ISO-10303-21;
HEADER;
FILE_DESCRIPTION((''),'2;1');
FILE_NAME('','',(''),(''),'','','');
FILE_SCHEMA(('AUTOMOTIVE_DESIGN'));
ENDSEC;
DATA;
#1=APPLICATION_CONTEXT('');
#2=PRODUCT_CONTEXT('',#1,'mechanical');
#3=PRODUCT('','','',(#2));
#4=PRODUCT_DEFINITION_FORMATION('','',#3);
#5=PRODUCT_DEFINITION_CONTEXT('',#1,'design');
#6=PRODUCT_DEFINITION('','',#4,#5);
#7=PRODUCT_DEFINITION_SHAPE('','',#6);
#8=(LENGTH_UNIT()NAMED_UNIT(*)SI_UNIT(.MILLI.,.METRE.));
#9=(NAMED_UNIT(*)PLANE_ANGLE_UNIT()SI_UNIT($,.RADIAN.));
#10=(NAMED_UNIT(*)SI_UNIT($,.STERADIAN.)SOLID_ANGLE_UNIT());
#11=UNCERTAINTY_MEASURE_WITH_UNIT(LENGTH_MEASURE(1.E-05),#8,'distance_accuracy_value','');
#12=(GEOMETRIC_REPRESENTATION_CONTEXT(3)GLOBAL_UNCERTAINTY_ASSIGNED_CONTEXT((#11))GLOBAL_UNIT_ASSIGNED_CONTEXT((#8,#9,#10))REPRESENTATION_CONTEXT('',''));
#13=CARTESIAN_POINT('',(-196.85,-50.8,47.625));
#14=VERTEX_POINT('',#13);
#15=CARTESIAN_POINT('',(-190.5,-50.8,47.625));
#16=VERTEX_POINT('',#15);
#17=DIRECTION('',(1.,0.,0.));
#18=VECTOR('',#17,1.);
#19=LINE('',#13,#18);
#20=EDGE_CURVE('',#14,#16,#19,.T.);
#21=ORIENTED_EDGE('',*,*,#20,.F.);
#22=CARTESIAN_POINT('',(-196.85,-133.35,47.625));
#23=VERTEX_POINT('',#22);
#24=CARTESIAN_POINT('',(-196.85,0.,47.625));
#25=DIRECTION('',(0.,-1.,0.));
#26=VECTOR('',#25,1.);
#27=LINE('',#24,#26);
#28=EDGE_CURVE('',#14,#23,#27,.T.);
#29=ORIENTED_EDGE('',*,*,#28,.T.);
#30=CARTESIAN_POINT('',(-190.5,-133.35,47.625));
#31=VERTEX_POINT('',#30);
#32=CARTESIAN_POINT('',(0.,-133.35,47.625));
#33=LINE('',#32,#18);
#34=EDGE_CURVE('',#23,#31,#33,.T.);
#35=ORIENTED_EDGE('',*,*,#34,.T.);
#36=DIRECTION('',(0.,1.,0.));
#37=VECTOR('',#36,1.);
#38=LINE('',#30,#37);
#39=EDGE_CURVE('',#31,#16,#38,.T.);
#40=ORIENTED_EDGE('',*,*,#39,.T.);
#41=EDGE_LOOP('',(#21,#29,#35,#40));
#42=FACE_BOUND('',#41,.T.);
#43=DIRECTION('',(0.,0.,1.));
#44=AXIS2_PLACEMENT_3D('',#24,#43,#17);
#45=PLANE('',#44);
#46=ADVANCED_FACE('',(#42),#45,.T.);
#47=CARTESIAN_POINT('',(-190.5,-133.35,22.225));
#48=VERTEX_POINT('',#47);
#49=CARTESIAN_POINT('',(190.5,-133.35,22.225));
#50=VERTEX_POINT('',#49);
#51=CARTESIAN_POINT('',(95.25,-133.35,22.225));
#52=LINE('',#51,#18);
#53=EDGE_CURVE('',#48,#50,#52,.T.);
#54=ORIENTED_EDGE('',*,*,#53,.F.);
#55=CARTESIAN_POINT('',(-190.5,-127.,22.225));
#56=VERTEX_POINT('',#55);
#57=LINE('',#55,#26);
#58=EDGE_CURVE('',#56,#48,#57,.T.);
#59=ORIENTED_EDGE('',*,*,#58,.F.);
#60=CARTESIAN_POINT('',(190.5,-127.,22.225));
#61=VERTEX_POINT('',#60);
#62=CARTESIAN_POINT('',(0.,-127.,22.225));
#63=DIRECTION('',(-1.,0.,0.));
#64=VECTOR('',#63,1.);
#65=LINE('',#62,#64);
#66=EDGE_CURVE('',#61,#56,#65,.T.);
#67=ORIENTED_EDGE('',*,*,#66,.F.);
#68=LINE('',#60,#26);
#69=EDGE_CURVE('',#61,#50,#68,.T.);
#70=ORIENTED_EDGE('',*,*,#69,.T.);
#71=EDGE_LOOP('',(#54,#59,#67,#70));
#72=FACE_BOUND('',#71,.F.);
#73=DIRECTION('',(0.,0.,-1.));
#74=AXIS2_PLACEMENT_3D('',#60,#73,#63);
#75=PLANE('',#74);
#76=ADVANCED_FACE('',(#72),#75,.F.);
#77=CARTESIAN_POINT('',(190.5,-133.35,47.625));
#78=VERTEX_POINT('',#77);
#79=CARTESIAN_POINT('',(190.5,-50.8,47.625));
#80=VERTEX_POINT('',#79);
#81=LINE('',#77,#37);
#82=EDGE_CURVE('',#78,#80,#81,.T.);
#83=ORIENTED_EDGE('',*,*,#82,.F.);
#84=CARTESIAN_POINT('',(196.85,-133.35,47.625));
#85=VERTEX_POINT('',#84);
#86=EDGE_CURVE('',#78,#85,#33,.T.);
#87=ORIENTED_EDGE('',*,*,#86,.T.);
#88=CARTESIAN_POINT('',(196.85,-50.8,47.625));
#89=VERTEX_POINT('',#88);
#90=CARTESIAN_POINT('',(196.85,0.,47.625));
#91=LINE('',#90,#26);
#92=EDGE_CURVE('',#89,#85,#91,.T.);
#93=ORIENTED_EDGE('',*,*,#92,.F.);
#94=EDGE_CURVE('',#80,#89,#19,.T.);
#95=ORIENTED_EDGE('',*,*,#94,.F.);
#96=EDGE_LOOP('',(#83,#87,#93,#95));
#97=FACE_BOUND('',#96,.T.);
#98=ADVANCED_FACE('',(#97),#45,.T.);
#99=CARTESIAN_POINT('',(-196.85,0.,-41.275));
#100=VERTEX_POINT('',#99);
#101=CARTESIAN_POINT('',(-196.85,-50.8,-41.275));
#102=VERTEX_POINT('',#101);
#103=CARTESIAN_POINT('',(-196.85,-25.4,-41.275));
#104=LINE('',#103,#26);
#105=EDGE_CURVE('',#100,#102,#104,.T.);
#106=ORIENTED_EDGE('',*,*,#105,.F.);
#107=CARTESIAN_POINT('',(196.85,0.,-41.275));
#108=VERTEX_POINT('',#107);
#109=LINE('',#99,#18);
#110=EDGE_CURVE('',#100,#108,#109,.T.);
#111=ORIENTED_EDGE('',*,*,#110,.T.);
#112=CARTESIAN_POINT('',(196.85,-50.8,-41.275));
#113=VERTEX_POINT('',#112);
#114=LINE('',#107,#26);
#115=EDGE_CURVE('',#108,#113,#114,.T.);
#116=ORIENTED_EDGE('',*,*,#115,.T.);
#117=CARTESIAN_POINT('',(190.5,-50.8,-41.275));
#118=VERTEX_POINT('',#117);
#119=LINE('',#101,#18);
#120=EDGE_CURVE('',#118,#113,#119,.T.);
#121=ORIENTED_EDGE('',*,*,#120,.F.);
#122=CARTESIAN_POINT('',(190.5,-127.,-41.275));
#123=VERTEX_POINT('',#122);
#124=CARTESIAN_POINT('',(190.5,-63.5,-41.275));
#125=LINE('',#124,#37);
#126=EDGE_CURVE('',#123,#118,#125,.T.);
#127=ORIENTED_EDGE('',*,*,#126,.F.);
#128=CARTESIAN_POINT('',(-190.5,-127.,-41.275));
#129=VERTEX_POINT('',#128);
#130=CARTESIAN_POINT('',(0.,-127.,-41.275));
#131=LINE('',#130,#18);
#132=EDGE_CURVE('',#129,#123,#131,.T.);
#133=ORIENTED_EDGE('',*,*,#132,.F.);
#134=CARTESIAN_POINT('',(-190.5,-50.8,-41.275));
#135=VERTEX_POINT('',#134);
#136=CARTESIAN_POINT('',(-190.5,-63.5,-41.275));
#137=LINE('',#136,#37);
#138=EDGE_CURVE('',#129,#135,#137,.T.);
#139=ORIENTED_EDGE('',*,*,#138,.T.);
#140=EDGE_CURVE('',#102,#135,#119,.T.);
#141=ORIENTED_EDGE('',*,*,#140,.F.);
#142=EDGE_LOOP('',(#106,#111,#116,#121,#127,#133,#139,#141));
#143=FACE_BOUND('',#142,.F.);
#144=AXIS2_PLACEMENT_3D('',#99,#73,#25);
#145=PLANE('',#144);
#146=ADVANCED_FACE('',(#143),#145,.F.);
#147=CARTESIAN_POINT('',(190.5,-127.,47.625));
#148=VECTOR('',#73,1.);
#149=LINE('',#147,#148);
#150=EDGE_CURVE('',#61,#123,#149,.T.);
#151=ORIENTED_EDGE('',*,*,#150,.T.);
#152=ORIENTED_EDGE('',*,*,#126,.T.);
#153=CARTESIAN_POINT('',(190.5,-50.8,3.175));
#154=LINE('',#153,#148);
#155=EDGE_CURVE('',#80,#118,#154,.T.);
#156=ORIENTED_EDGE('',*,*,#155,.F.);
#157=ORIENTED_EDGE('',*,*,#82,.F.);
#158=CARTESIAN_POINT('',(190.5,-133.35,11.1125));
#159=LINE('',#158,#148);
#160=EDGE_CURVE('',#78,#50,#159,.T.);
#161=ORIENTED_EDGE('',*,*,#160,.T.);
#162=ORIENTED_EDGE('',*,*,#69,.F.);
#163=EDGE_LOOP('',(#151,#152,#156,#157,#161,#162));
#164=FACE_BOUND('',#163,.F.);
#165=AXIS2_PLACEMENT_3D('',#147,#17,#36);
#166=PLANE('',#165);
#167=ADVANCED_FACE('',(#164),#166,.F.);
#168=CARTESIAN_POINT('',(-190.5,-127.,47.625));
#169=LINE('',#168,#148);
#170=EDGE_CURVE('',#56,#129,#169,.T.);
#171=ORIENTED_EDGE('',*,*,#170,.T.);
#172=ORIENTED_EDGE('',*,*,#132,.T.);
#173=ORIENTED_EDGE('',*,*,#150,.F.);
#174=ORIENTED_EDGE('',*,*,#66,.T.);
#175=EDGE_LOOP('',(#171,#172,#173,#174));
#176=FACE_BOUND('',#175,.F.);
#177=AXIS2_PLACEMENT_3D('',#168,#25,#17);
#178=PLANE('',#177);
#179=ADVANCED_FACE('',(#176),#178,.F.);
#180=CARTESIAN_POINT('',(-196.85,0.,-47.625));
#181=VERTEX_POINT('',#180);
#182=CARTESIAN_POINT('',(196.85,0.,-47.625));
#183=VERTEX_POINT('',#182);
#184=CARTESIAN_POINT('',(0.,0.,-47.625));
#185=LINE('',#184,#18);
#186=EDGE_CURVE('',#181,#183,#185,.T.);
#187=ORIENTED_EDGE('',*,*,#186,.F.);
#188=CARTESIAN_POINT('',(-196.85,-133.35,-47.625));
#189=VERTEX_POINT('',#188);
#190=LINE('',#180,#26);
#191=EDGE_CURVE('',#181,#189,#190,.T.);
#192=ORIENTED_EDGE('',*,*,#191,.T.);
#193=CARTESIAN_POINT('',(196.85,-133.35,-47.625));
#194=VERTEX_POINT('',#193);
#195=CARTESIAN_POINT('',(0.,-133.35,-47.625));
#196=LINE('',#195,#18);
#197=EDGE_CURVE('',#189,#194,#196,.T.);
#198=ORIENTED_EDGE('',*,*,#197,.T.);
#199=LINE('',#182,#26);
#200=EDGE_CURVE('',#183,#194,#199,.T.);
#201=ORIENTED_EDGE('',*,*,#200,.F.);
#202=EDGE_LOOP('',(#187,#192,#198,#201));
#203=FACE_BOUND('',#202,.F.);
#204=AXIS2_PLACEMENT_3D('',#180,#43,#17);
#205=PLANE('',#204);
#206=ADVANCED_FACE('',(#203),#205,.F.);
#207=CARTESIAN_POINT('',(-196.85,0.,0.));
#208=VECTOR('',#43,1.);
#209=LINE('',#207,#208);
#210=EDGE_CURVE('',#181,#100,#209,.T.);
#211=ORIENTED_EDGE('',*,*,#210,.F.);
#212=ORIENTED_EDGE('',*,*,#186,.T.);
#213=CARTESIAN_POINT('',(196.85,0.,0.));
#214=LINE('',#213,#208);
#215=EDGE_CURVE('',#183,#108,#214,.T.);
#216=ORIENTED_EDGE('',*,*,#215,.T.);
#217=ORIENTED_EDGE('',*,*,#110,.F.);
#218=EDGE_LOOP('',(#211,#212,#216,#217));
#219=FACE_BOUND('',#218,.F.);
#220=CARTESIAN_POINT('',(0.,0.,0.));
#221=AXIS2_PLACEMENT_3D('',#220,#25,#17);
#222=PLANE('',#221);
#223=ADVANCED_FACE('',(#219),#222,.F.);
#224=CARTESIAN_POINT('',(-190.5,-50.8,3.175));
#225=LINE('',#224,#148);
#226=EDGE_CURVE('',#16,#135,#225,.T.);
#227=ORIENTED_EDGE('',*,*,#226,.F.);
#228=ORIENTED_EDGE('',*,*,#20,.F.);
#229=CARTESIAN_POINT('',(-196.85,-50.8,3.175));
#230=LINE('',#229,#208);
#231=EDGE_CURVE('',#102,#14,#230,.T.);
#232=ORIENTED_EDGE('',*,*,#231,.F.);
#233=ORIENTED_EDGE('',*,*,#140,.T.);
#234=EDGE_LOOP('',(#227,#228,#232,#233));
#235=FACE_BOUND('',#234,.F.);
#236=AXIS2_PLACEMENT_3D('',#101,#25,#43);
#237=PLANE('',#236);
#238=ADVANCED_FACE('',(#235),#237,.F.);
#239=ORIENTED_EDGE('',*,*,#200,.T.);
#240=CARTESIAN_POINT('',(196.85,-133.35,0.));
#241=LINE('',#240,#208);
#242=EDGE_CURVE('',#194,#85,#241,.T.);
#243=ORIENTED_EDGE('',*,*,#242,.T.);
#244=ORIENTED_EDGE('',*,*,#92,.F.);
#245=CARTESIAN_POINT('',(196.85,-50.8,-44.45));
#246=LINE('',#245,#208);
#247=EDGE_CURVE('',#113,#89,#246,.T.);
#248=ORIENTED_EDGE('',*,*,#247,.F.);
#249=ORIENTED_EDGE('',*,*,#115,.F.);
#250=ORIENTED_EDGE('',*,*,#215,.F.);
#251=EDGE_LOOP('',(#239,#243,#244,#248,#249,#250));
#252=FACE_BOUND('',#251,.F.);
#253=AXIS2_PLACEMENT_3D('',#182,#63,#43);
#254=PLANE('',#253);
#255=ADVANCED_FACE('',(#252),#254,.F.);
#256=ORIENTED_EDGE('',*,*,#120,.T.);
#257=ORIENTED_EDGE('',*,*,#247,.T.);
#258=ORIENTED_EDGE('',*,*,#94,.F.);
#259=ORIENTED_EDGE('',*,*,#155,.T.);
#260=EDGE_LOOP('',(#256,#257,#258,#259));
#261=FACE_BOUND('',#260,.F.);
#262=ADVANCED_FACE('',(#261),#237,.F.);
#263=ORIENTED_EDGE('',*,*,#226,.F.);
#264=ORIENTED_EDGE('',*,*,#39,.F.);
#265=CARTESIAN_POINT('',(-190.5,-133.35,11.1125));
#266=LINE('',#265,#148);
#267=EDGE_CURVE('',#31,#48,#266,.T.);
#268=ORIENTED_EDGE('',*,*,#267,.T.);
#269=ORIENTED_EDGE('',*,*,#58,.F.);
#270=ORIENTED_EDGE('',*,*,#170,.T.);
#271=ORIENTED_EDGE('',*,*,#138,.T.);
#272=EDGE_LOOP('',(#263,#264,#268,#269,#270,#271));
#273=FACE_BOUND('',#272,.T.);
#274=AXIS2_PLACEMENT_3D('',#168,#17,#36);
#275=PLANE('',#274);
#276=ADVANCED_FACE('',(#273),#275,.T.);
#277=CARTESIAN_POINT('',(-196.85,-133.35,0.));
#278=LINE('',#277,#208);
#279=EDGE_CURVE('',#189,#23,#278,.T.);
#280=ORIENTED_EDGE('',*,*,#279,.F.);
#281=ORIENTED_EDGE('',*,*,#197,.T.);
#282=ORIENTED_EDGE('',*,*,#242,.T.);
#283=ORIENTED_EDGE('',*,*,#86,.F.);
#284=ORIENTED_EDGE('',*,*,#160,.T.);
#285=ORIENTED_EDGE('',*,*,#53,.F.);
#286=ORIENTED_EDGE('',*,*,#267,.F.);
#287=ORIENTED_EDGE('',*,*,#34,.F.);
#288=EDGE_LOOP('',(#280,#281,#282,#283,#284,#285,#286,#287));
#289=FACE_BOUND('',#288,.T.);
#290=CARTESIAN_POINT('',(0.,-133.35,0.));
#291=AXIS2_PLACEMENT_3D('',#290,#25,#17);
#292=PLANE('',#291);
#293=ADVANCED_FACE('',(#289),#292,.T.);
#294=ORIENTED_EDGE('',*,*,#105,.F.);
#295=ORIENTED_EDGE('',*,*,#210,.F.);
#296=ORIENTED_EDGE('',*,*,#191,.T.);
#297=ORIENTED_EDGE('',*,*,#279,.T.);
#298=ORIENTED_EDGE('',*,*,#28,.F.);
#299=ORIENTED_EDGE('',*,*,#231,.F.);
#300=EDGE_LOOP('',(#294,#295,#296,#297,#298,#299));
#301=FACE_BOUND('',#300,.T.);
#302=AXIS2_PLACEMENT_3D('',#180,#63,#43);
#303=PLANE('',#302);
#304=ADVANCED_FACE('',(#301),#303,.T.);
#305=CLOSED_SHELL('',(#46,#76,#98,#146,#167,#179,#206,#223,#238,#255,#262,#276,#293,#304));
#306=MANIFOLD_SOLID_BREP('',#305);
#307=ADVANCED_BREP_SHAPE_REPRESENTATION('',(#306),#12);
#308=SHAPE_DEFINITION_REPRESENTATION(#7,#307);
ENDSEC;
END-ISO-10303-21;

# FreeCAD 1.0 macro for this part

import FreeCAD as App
import Part
import Sketcher

V = App.Vector
Q = App.Units.Quantity

doc = App.newDocument("Part")
body = doc.addObject("PartDesign::Body", "Body")

# Sketch on XZ plane
sketch1 = doc.addObject("Sketcher::SketchObject", "Sketch")
body.addObject(sketch1)
sketch1.AttachmentSupport = (doc.XZ_Plane, [""])
sketch1.MapMode = "FlatFace"
sketch1.addGeometry([
    Part.LineSegment(V(-197, 48, 0), V(-197, -48, 0)),
    Part.LineSegment(V(-197, -48, 0), V(197, -48, 0)),
    Part.LineSegment(V(197, -48, 0), V(197, 48, 0)),
    Part.LineSegment(V(197, 48, 0), V(-197, 48, 0)),
], False)
sketch1.addConstraint([
    Sketcher.Constraint("Coincident", 0, 2, 1, 1),
    Sketcher.Constraint("Coincident", 1, 2, 2, 1),
    Sketcher.Constraint("Coincident", 2, 2, 3, 1),
    Sketcher.Constraint("Coincident", 3, 2, 0, 1),
    Sketcher.Constraint("Vertical", 0),
    Sketcher.Constraint("Horizontal", 1),
    Sketcher.Constraint("Vertical", 2),
    Sketcher.Constraint("Horizontal", 3),
    Sketcher.Constraint("Symmetric", 0, 2, 2, 2, -1, 1),
    Sketcher.Constraint("DistanceX", 1, 1, 1, 2, Q("15.5 in")),
    Sketcher.Constraint("DistanceY", 0, 2, 0, 1, Q("3.75 in")),
])
pad1 = doc.addObject("PartDesign::Pad", "Pad")
body.addObject(pad1)
pad1.Profile = sketch1
pad1.Length = Q("5.25 in")

# Sketch on XY plane
sketch2 = doc.addObject("Sketcher::SketchObject", "Sketch001")
body.addObject(sketch2)
sketch2.AttachmentSupport = (doc.XY_Plane, [""])
sketch2.MapMode = "FlatFace"
sketch2.AttachmentOffset = App.Placement(V(0, 0, 1.875 * 25.4), App.Rotation())
sketch2.addGeometry([
    Part.LineSegment(V(-190, 0, 0), V(-190, -127, 0)),
    Part.LineSegment(V(-190, -127, 0), V(190, -127, 0)),
    Part.LineSegment(V(190, -127, 0), V(190, 0, 0)),
    Part.LineSegment(V(190, 0, 0), V(-190, 0, 0)),
], False)
sketch2.addConstraint([
    Sketcher.Constraint("Coincident", 0, 2, 1, 1),
    Sketcher.Constraint("Coincident", 1, 2, 2, 1),
    Sketcher.Constraint("Coincident", 2, 2, 3, 1),
    Sketcher.Constraint("Coincident", 3, 2, 0, 1),
    Sketcher.Constraint("Vertical", 0),
    Sketcher.Constraint("Horizontal", 1),
    Sketcher.Constraint("Vertical", 2),
    Sketcher.Constraint("Horizontal", 3),
    Sketcher.Constraint("Symmetric", 2, 2, 3, 2, -1, 1),
    Sketcher.Constraint("DistanceX", 1, 1, 1, 2, Q("15 in")),
    Sketcher.Constraint("DistanceY", 0, 2, 0, 1, Q("5 in")),
])
pocket1 = doc.addObject("PartDesign::Pocket", "Pocket")
body.addObject(pocket1)
pocket1.Profile = sketch2
pocket1.Length = Q("3.5 in")

# Sketch on YZ plane
sketch3 = doc.addObject("Sketcher::SketchObject", "Sketch002")
body.addObject(sketch3)
sketch3.AttachmentSupport = (doc.YZ_Plane, [""])
sketch3.MapMode = "FlatFace"
sketch3.AttachmentOffset = App.Placement(V(0, 0, -7.75 * 25.4), App.Rotation())
sketch3.addGeometry([
    Part.LineSegment(V(0, 48, 0), V(0, -41, 0)),
    Part.LineSegment(V(0, -41, 0), V(-51, -41, 0)),
    Part.LineSegment(V(-51, -41, 0), V(-51, 48, 0)),
    Part.LineSegment(V(-51, 48, 0), V(0, 48, 0)),
], False)
sketch3.addConstraint([
    Sketcher.Constraint("Coincident", 0, 2, 1, 1),
    Sketcher.Constraint("Coincident", 1, 2, 2, 1),
    Sketcher.Constraint("Coincident", 2, 2, 3, 1),
    Sketcher.Constraint("Coincident", 3, 2, 0, 1),
    Sketcher.Constraint("Vertical", 0),
    Sketcher.Constraint("Horizontal", 1),
    Sketcher.Constraint("Vertical", 2),
    Sketcher.Constraint("Horizontal", 3),
    Sketcher.Constraint("PointOnObject", 0, 2, -2),
    Sketcher.Constraint("DistanceX", 1, 2, 1, 1, Q("2 in")),
    Sketcher.Constraint("DistanceY", 0, 2, 0, 1, Q("3.5 in")),
    Sketcher.Constraint("DistanceY", 0, 2, -1, 1, Q("1.625 in")),
])
pocket2 = doc.addObject("PartDesign::Pocket", "Pocket001")
body.addObject(pocket2)
pocket2.Profile = sketch3
pocket2.Length = Q("16 in")
pocket2.Reversed = True

# Sketch on XZ plane
sketch4 = doc.addObject("Sketcher::SketchObject", "Sketch003")
body.addObject(sketch4)
sketch4.AttachmentSupport = (doc.XZ_Plane, [""])
sketch4.MapMode = "FlatFace"
sketch4.AttachmentOffset = App.Placement(V(0, 0, 5 * 25.4), App.Rotation())
sketch4.addGeometry([
    Part.LineSegment(V(190, 48, 0), V(190, 22, 0)),
    Part.LineSegment(V(190, 22, 0), V(-190, 22, 0)),
    Part.LineSegment(V(-190, 22, 0), V(-190, 48, 0)),
    Part.LineSegment(V(-190, 48, 0), V(190, 48, 0)),
], False)
sketch4.addConstraint([
    Sketcher.Constraint("Coincident", 0, 2, 1, 1),
    Sketcher.Constraint("Coincident", 1, 2, 2, 1),
    Sketcher.Constraint("Coincident", 2, 2, 3, 1),
    Sketcher.Constraint("Coincident", 3, 2, 0, 1),
    Sketcher.Constraint("Vertical", 0),
    Sketcher.Constraint("Horizontal", 1),
    Sketcher.Constraint("Vertical", 2),
    Sketcher.Constraint("Horizontal", 3),
    Sketcher.Constraint("DistanceX", 1, 2, 1, 1, Q("15 in")),
    Sketcher.Constraint("DistanceY", 0, 2, 0, 1, Q("1 in")),
    Sketcher.Constraint("DistanceX", -1, 1, 0, 2, Q("7.5 in")),
    Sketcher.Constraint("DistanceY", -1, 1, 0, 2, Q("0.875 in")),
])
pocket3 = doc.addObject("PartDesign::Pocket", "Pocket002")
body.addObject(pocket3)
pocket3.Profile = sketch4
pocket3.Length = Q("1 in")
pocket3.Reversed = True

doc.recompute()
